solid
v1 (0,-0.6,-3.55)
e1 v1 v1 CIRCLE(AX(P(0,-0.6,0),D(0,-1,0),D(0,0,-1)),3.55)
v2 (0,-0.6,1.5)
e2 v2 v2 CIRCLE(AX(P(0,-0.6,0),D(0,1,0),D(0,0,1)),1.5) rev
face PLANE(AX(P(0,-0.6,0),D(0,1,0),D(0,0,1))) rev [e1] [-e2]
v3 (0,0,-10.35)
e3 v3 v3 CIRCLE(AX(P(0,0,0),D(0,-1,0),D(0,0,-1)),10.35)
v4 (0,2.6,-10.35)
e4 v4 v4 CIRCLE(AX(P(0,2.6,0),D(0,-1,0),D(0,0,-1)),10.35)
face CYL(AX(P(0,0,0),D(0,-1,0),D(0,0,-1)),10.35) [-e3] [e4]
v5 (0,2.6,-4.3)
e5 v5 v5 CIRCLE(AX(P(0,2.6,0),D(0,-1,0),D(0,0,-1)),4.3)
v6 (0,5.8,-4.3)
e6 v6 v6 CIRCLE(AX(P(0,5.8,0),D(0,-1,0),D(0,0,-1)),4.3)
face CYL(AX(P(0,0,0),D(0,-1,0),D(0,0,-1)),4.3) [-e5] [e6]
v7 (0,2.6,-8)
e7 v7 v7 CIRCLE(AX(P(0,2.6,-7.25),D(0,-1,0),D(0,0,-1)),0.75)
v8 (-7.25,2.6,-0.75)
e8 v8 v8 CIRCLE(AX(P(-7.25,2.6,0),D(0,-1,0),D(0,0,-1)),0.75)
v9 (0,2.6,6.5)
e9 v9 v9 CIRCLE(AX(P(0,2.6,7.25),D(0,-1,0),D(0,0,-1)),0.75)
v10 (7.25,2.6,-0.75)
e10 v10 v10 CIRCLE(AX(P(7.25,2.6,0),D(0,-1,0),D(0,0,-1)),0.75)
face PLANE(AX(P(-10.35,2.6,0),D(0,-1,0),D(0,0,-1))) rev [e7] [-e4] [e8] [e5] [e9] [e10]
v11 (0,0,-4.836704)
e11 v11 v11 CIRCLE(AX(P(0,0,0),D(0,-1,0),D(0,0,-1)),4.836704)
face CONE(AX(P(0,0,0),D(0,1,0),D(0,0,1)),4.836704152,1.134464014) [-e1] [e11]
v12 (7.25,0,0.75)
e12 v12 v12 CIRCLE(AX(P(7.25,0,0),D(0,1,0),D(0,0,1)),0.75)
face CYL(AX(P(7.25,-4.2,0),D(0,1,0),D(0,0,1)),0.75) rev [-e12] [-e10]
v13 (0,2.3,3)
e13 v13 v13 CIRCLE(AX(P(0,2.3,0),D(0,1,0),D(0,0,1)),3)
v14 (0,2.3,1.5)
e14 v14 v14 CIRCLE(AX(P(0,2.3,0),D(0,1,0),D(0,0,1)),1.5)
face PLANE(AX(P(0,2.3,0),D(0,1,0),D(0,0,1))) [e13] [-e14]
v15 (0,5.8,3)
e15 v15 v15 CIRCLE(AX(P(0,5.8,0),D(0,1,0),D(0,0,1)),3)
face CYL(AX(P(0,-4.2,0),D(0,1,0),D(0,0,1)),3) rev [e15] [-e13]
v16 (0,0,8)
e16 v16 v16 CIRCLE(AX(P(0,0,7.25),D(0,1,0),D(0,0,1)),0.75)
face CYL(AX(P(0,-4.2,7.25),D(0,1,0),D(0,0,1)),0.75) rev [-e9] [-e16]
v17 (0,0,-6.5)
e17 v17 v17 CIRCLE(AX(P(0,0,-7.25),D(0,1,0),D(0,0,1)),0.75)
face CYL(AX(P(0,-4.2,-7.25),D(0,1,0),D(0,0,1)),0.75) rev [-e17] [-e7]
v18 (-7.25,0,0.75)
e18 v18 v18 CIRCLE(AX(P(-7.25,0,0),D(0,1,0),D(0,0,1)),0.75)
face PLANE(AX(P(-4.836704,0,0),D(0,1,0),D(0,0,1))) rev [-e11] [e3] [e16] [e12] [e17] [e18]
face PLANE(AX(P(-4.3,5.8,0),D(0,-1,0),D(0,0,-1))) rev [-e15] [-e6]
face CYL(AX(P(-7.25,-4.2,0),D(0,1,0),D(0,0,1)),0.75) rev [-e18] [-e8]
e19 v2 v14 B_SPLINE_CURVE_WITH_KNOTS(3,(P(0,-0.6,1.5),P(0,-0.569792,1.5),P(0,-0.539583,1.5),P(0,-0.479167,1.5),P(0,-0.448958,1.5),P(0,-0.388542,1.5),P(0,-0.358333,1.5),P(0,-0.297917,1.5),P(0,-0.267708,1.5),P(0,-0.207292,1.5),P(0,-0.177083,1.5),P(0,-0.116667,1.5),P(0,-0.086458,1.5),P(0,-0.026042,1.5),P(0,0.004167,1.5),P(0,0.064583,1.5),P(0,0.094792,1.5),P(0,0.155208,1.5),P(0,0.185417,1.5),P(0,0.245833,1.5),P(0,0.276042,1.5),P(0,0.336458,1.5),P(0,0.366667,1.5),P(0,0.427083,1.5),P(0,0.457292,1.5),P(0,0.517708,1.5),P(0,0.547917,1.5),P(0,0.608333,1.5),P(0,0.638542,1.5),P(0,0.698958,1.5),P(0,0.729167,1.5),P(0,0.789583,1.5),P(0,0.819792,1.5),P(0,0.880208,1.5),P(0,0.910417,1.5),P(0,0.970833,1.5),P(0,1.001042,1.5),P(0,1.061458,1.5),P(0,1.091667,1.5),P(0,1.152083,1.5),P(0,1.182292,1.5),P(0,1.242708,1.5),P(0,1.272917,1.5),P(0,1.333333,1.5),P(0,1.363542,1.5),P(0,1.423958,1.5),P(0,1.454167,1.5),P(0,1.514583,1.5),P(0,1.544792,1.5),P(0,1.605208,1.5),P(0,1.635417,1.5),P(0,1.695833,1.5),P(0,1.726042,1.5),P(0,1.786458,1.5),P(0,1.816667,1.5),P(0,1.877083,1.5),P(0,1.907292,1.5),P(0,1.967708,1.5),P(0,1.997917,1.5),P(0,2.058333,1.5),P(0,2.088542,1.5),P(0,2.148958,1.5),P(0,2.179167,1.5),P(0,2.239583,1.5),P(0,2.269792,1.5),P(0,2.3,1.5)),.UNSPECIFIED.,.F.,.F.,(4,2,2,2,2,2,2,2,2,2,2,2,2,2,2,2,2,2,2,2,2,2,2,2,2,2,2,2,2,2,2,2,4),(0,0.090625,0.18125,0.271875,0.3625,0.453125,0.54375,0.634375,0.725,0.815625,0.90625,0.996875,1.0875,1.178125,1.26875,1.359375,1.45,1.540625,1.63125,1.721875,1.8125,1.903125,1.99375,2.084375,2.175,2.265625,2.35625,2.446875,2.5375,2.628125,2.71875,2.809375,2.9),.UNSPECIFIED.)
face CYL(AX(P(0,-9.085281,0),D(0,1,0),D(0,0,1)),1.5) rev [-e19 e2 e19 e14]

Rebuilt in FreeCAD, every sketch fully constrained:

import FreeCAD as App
import Part
import Sketcher
Q = App.Units.Quantity

doc = App.newDocument("Part")
body = doc.addObject("PartDesign::Body", "Body")

# Sketch on XY plane
sketch1 = doc.addObject("Sketcher::SketchObject", "Sketch")
body.addObject(sketch1)
sketch1.AttachmentSupport = (doc.XY_Plane, [""])
sketch1.MapMode = "FlatFace"
sketch1.addGeometry([
    Part.LineSegment(App.Vector(-3.5, -0.6, 0), App.Vector(0, -0.6, 0)),  # 0
    Part.LineSegment(App.Vector(0, -0.6, 0), App.Vector(0, 5.8, 0)),  # 1
    Part.LineSegment(App.Vector(0, 5.8, 0), App.Vector(-4.3, 5.8, 0)),  # 2
    Part.LineSegment(App.Vector(-4.3, 5.8, 0), App.Vector(-4.3, 2.6, 0)),  # 3
    Part.LineSegment(App.Vector(-4.3, 2.6, 0), App.Vector(-10.3, 2.6, 0)),  # 4
    Part.LineSegment(App.Vector(-10.3, 2.6, 0), App.Vector(-10.3, 0, 0)),  # 5
    Part.LineSegment(App.Vector(-10.3, 0, 0), App.Vector(-4.8, 0, 0)),  # 6
    Part.LineSegment(App.Vector(-4.8, 0, 0), App.Vector(-3.5, -0.6, 0)),  # 7
], False)
sketch1.addConstraint([
    Sketcher.Constraint("Coincident", 0, 2, 1, 1),
    Sketcher.Constraint("Coincident", 1, 2, 2, 1),
    Sketcher.Constraint("Coincident", 2, 2, 3, 1),
    Sketcher.Constraint("Coincident", 3, 2, 4, 1),
    Sketcher.Constraint("Coincident", 4, 2, 5, 1),
    Sketcher.Constraint("Coincident", 5, 2, 6, 1),
    Sketcher.Constraint("Coincident", 6, 2, 7, 1),
    Sketcher.Constraint("Coincident", 7, 2, 0, 1),
    Sketcher.Constraint("Horizontal", 0),
    Sketcher.Constraint("Vertical", 1),
    Sketcher.Constraint("Horizontal", 2),
    Sketcher.Constraint("Vertical", 3),
    Sketcher.Constraint("Horizontal", 4),
    Sketcher.Constraint("Vertical", 5),
    Sketcher.Constraint("Horizontal", 6),
    Sketcher.Constraint("PointOnObject", 0, 2, -2),
    Sketcher.Constraint("PointOnObject", 5, 2, -1),
    Sketcher.Constraint("Angle", 7, Q("-25 deg")),
    Sketcher.Constraint("DistanceX", 2, 2, 2, 1, Q("4.3 mm")),
    Sketcher.Constraint("DistanceY", 1, 1, 1, 2, Q("6.4 mm")),
    Sketcher.Constraint("DistanceY", 3, 2, 3, 1, Q("3.2 mm")),
    Sketcher.Constraint("DistanceY", 5, 2, 5, 1, Q("2.6 mm")),
    Sketcher.Constraint("DistanceX", 0, 1, 0, 2, Q("3.55 mm")),
    Sketcher.Constraint("DistanceX", 4, 2, 4, 1, Q("6.05 mm")),
])
revolution = doc.addObject("PartDesign::Revolution", "Revolution")
body.addObject(revolution)
revolution.Profile = sketch1
revolution.ReferenceAxis = (sketch1, ["V_Axis"])
revolution.Angle = 360

# Sketch on XZ plane
sketch2 = doc.addObject("Sketcher::SketchObject", "Sketch001")
body.addObject(sketch2)
sketch2.AttachmentSupport = (doc.XZ_Plane, [""])
sketch2.MapMode = "FlatFace"
sketch2.AttachmentOffset = App.Placement(App.Vector(0, 0, -5.8), App.Rotation())
sketch2.addGeometry([
    Part.Circle(App.Vector(0, 0, 0), App.Vector(0, 0, 1), 3),  # 0
    Part.Circle(App.Vector(0, -7.2, 0), App.Vector(0, 0, 1), 0.8),  # 1
    Part.Circle(App.Vector(7.2, 0, 0), App.Vector(0, 0, 1), 0.8),  # 2
    Part.Circle(App.Vector(0, 7.2, 0), App.Vector(0, 0, 1), 0.8),  # 3
    Part.Circle(App.Vector(-7.2, 0, 0), App.Vector(0, 0, 1), 0.8),  # 4
], False)
sketch2.addConstraint([
    Sketcher.Constraint("Coincident", 0, 3, -1, 1),
    Sketcher.Constraint("Equal", 1, 2),
    Sketcher.Constraint("Equal", 2, 3),
    Sketcher.Constraint("Equal", 3, 4),
    Sketcher.Constraint("Symmetric", 1, 3, 3, 3, -1, 1),
    Sketcher.Constraint("Symmetric", 2, 3, 4, 3, -1, 1),
    Sketcher.Constraint("PointOnObject", 1, 3, -2),
    Sketcher.Constraint("PointOnObject", 2, 3, -1),
    Sketcher.Constraint("Diameter", 0, Q("6 mm")),
    Sketcher.Constraint("Diameter", 1, Q("1.5 mm")),
    Sketcher.Constraint("DistanceY", 1, 3, 3, 3, Q("14.5 mm")),
    Sketcher.Constraint("DistanceX", 4, 3, 2, 3, Q("14.5 mm")),
])
pocket1 = doc.addObject("PartDesign::Pocket", "Pocket")
body.addObject(pocket1)
pocket1.Profile = sketch2
pocket1.Length = 10
pocket1.Reversed = True

# Sketch on XZ plane
sketch3 = doc.addObject("Sketcher::SketchObject", "Sketch002")
body.addObject(sketch3)
sketch3.AttachmentSupport = (doc.XZ_Plane, [""])
sketch3.MapMode = "FlatFace"
sketch3.AttachmentOffset = App.Placement(App.Vector(0, 0, -2.3), App.Rotation())
sketch3.addGeometry([
    Part.Circle(App.Vector(0, 0, 0), App.Vector(0, 0, 1), 3),
    Part.Circle(App.Vector(0, 0, 0), App.Vector(0, 0, 1), 1.5),
], False)
sketch3.addConstraint([
    Sketcher.Constraint("Coincident", 0, 3, -1, 1),
    Sketcher.Constraint("Coincident", 1, 3, -1, 1),
    Sketcher.Constraint("Diameter", 0, Q("6 mm")),
    Sketcher.Constraint("Diameter", 1, Q("3 mm")),
])
pad1 = doc.addObject("PartDesign::Pad", "Pad")
body.addObject(pad1)
pad1.Profile = sketch3
pad1.Length = 2.9

doc.recompute()
